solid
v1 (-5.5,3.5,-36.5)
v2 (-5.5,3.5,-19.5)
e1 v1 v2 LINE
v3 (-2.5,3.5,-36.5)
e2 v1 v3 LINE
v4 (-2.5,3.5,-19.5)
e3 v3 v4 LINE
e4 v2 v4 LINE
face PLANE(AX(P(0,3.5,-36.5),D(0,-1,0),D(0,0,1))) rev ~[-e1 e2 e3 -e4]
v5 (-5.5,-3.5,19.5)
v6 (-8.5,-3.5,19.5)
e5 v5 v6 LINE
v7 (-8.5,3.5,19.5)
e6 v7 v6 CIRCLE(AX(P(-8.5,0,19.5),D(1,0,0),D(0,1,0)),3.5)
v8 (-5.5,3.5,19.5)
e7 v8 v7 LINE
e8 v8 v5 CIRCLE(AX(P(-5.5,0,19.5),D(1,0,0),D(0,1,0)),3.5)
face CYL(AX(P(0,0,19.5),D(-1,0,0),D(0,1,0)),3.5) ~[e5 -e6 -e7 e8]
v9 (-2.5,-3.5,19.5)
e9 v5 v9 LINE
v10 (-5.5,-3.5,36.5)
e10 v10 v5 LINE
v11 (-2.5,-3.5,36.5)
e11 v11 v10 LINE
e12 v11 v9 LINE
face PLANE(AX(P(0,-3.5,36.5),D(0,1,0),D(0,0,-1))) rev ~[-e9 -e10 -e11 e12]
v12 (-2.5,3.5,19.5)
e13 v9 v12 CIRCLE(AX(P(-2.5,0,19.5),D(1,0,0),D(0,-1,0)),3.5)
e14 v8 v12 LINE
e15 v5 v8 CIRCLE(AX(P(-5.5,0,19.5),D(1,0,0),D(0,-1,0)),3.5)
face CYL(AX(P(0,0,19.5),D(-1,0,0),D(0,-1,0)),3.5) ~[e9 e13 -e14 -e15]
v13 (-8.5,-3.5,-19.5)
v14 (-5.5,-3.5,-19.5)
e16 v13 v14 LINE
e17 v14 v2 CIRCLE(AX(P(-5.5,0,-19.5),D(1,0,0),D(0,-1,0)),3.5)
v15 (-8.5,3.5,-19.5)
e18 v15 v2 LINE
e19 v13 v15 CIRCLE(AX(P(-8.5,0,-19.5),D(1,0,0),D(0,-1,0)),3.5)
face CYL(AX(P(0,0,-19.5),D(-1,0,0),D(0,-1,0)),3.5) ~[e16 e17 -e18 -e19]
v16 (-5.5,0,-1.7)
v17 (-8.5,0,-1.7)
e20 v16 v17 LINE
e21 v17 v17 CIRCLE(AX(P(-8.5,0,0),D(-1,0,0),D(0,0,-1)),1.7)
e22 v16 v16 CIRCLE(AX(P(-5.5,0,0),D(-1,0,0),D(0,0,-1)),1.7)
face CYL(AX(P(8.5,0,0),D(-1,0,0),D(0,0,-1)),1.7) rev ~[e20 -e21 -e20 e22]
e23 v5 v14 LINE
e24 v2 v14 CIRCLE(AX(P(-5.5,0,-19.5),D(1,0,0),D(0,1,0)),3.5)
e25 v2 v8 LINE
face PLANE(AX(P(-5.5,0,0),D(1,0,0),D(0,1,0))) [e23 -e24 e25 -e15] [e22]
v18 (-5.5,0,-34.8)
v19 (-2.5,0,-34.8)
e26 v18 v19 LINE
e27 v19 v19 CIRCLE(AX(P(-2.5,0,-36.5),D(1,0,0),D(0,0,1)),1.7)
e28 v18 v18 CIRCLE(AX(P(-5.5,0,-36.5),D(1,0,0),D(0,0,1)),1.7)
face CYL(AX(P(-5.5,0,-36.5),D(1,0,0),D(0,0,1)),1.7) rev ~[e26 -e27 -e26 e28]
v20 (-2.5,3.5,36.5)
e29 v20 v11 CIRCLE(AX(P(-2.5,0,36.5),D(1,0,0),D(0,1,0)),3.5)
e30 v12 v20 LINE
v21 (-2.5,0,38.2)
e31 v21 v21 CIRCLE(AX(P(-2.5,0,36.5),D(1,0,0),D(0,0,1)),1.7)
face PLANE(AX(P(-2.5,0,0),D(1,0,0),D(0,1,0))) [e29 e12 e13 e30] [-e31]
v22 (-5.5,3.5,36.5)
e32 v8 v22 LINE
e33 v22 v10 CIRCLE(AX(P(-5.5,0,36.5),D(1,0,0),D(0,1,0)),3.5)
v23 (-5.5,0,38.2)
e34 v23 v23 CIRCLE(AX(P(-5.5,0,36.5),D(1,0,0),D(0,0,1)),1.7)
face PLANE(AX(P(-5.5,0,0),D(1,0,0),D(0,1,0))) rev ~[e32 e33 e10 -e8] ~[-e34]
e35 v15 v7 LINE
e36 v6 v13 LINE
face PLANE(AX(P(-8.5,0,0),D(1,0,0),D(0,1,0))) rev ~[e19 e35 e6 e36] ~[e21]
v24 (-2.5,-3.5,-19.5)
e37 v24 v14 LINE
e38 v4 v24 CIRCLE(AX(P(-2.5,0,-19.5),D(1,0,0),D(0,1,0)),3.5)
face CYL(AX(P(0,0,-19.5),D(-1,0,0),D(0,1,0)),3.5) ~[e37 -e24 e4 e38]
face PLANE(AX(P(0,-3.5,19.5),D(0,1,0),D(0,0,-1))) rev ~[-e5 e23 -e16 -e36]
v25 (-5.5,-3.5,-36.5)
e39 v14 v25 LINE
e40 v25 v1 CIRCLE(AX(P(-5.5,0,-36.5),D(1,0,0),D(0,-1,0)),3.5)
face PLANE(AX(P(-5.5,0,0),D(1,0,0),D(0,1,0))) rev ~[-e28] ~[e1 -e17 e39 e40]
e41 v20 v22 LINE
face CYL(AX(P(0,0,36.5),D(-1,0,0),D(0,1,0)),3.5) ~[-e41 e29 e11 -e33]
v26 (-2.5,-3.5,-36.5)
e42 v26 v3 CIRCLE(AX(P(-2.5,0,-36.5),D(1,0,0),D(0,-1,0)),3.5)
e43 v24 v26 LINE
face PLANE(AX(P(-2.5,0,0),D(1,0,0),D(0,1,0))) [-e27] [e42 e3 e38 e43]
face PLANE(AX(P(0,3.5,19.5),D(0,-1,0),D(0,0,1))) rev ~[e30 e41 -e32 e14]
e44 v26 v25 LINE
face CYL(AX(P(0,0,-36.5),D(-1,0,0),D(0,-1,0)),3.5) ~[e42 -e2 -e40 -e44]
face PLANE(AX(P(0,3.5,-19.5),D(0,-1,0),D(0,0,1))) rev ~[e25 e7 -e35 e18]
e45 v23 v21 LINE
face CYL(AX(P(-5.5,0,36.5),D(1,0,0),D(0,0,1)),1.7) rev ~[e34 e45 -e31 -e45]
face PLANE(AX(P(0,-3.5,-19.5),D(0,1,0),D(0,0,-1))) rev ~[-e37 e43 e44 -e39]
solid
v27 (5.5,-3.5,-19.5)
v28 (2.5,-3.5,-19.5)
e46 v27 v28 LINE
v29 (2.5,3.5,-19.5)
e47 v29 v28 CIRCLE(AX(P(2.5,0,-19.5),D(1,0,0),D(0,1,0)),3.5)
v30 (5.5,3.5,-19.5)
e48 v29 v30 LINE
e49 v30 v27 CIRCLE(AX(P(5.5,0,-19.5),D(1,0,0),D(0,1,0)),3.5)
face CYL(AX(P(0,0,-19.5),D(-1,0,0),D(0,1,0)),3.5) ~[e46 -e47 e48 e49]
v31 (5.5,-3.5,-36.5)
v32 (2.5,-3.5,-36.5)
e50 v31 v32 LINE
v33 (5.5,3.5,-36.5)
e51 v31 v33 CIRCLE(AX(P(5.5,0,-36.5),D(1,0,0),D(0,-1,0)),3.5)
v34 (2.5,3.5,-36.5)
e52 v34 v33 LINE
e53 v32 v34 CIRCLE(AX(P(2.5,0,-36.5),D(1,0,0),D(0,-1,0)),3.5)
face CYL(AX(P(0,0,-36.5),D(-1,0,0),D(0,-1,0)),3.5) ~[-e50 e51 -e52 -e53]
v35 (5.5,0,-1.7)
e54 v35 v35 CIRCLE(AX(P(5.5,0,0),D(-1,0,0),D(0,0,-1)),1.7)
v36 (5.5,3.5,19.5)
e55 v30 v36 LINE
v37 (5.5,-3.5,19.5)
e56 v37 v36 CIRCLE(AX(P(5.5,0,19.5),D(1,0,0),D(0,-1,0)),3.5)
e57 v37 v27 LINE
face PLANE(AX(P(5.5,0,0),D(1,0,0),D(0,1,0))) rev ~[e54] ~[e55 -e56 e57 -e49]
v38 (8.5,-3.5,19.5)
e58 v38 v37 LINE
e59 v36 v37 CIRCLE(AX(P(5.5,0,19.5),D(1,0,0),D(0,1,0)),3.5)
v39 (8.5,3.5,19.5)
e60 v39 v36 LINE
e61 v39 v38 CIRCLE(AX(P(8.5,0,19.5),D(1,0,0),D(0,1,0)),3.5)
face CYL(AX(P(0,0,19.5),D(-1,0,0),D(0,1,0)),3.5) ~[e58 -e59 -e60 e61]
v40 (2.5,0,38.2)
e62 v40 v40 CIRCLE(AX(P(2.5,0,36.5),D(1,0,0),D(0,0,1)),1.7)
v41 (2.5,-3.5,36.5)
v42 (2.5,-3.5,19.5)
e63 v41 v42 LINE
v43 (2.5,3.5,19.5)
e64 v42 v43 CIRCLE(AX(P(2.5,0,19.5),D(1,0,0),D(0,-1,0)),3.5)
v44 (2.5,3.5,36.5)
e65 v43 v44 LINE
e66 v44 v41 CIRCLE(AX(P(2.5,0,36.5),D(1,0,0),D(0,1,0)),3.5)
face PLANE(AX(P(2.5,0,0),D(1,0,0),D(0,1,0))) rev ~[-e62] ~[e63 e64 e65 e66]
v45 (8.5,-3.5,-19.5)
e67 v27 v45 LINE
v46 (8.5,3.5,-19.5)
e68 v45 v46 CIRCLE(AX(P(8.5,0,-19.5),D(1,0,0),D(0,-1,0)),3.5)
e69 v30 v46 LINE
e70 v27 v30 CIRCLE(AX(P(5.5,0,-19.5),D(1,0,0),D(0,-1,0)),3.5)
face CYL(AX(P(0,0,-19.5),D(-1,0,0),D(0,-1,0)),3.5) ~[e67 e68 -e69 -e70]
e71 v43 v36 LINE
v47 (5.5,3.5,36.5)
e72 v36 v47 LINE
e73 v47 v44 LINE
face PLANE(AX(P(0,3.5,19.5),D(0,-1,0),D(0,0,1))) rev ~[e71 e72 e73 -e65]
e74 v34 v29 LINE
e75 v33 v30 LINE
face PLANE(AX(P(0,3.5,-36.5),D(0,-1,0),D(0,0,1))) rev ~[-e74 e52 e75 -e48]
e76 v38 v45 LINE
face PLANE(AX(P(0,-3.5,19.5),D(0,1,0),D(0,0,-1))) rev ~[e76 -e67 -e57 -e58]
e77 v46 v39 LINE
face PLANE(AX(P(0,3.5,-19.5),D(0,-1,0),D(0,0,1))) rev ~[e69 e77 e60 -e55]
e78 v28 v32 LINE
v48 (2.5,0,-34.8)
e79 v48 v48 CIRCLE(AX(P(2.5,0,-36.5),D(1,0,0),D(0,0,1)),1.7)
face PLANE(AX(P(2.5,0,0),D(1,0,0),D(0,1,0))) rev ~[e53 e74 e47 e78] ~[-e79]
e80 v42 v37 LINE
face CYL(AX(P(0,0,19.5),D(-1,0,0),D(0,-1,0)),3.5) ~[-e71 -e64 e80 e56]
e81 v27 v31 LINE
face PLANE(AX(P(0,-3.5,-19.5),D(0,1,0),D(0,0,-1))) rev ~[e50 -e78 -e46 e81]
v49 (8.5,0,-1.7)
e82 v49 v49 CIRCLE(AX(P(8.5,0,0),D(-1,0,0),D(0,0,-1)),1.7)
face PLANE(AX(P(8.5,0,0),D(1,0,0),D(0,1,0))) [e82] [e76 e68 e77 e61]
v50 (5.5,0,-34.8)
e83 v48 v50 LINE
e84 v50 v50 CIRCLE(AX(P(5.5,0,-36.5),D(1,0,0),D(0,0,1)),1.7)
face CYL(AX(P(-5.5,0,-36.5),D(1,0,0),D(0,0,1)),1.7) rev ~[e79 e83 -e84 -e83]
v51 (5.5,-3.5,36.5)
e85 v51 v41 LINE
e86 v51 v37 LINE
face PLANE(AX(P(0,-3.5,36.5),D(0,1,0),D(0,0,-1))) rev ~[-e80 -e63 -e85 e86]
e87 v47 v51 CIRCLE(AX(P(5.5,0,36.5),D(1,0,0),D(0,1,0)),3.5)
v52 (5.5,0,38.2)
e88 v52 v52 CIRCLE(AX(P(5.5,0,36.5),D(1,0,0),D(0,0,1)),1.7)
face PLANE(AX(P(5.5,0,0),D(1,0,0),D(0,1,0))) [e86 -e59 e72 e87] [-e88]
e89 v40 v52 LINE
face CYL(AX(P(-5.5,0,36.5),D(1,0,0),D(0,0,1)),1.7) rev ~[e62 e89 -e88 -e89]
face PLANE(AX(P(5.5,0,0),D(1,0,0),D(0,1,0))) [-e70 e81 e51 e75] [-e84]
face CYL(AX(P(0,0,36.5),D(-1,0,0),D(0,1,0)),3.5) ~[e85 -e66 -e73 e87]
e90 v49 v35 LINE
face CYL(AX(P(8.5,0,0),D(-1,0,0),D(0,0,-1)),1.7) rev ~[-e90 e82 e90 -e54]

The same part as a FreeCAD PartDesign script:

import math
import FreeCAD as App
import Part
import Sketcher
from FreeCAD import Vector

doc = App.newDocument("Part")
body = doc.addObject("PartDesign::Body", "Body")
body.AllowCompound = True

sketch1 = body.newObject("Sketcher::SketchObject", "Sketch")
sketch1.AttachmentSupport = (doc.getObject("YZ_Plane"), [""])
sketch1.MapMode = "FlatFace"
sketch1.addGeometry([
    Part.LineSegment(Vector(-3.5, 19.5, 0), Vector(-3.5, -19.5, 0)),
    Part.ArcOfCircle(Part.Circle(Vector(0, -19.5, 0), Vector(0, 0, 1), 3.5), math.radians(180), math.radians(360)),
    Part.LineSegment(Vector(3.5, -19.5, 0), Vector(3.5, 19.5, 0)),
    Part.ArcOfCircle(Part.Circle(Vector(0, 19.5, 0), Vector(0, 0, 1), 3.5), math.radians(0), math.radians(180)),
], False)
sketch1.addConstraint([
    Sketcher.Constraint("Tangent", 0, 2, 1, 1),
    Sketcher.Constraint("Tangent", 1, 2, 2, 1),
    Sketcher.Constraint("Tangent", 2, 2, 3, 1),
    Sketcher.Constraint("Tangent", 3, 2, 0, 1),
    Sketcher.Constraint("Vertical", 0),
    Sketcher.Constraint("Vertical", 2),
    Sketcher.Constraint("Symmetric", 1, 3, 3, 3, -1, 1),
    Sketcher.Constraint("Radius", 1, 3.5),
    Sketcher.Constraint("DistanceY", 0, 2, 0, 1, 39.0),
])
pad1 = body.newObject("PartDesign::Pad", "Pad")
pad1.Profile = sketch1
pad1.Length = 17
pad1.Midplane = True

sketch2 = body.newObject("Sketcher::SketchObject", "Sketch001")
sketch2.AttachmentSupport = (doc.getObject("YZ_Plane"), [""])
sketch2.MapMode = "FlatFace"
sketch2.addGeometry([
    Part.LineSegment(Vector(-3.5, 19.5, 0), Vector(-3.5, -19.5, 0)),
    Part.ArcOfCircle(Part.Circle(Vector(0, -19.5, 0), Vector(0, 0, 1), 3.5), math.radians(180), math.radians(360)),
    Part.LineSegment(Vector(3.5, -19.5, 0), Vector(3.5, 19.5, 0)),
    Part.ArcOfCircle(Part.Circle(Vector(0, 19.5, 0), Vector(0, 0, 1), 3.5), math.radians(0), math.radians(180)),
], False)
sketch2.addConstraint([
    Sketcher.Constraint("Tangent", 0, 2, 1, 1),
    Sketcher.Constraint("Tangent", 1, 2, 2, 1),
    Sketcher.Constraint("Tangent", 2, 2, 3, 1),
    Sketcher.Constraint("Tangent", 3, 2, 0, 1),
    Sketcher.Constraint("Vertical", 0),
    Sketcher.Constraint("Vertical", 2),
    Sketcher.Constraint("Symmetric", 1, 3, 3, 3, -1, 1),
    Sketcher.Constraint("Radius", 1, 3.5),
    Sketcher.Constraint("DistanceY", 0, 2, 0, 1, 39.0),
])
pocket1 = body.newObject("PartDesign::Pocket", "Pocket")
pocket1.Profile = sketch2
pocket1.Length = 11
pocket1.Midplane = True

sketch3 = body.newObject("Sketcher::SketchObject", "Sketch002")
sketch3.AttachmentSupport = (doc.getObject("YZ_Plane"), [""])
sketch3.MapMode = "FlatFace"
sketch3.addGeometry([
    Part.ArcOfCircle(Part.Circle(Vector(0, -36.5, 0), Vector(0, 0, 1), 3.5), math.radians(180), math.radians(360)),
    Part.LineSegment(Vector(3.5, -36.5, 0), Vector(3.5, -19.5, 0)),
    Part.ArcOfCircle(Part.Circle(Vector(0, -19.5, 0), Vector(0, 0, 1), 3.5), math.radians(0), math.radians(180)),
    Part.LineSegment(Vector(-3.5, -19.5, 0), Vector(-3.5, -36.5, 0)),
    Part.LineSegment(Vector(-3.5, 36.5, 0), Vector(-3.5, 19.5, 0)),
    Part.ArcOfCircle(Part.Circle(Vector(0, 19.5, 0), Vector(0, 0, 1), 3.5), math.radians(180), math.radians(360)),
    Part.LineSegment(Vector(3.5, 19.5, 0), Vector(3.5, 36.5, 0)),
    Part.ArcOfCircle(Part.Circle(Vector(0, 36.5, 0), Vector(0, 0, 1), 3.5), math.radians(0), math.radians(180)),
], False)
sketch3.addConstraint([
    Sketcher.Constraint("Tangent", 0, 2, 1, 1),
    Sketcher.Constraint("Tangent", 1, 2, 2, 1),
    Sketcher.Constraint("Tangent", 2, 2, 3, 1),
    Sketcher.Constraint("Tangent", 3, 2, 0, 1),
    Sketcher.Constraint("Tangent", 4, 2, 5, 1),
    Sketcher.Constraint("Tangent", 5, 2, 6, 1),
    Sketcher.Constraint("Tangent", 6, 2, 7, 1),
    Sketcher.Constraint("Tangent", 7, 2, 4, 1),
    Sketcher.Constraint("Vertical", 1),
    Sketcher.Constraint("Vertical", 3),
    Sketcher.Constraint("Vertical", 4),
    Sketcher.Constraint("Vertical", 6),
    Sketcher.Constraint("Equal", 2, 5),
    Sketcher.Constraint("Symmetric", 2, 3, 5, 3, -1, 1),
    Sketcher.Constraint("Symmetric", 0, 3, 7, 3, -1),
    Sketcher.Constraint("Radius", 0, 3.5),
    Sketcher.Constraint("DistanceY", 2, 3, 5, 3, 39.0),
    Sketcher.Constraint("DistanceY", 1, 1, 1, 2, 17.0),
])
pad2 = body.newObject("PartDesign::Pad", "Pad001")
pad2.Profile = sketch3
pad2.Length = 11
pad2.Midplane = True

sketch4 = body.newObject("Sketcher::SketchObject", "Sketch003")
sketch4.AttachmentSupport = (doc.getObject("YZ_Plane"), [""])
sketch4.MapMode = "FlatFace"
sketch4.addGeometry([
    Part.ArcOfCircle(Part.Circle(Vector(0, -36.5, 0), Vector(0, 0, 1), 3.5), math.radians(180), math.radians(360)),
    Part.LineSegment(Vector(3.5, -36.5, 0), Vector(3.5, -19.5, 0)),
    Part.ArcOfCircle(Part.Circle(Vector(0, -19.5, 0), Vector(0, 0, 1), 3.5), math.radians(0), math.radians(180)),
    Part.LineSegment(Vector(-3.5, -19.5, 0), Vector(-3.5, -36.5, 0)),
    Part.LineSegment(Vector(-3.5, 36.5, 0), Vector(-3.5, 19.5, 0)),
    Part.ArcOfCircle(Part.Circle(Vector(0, 19.5, 0), Vector(0, 0, 1), 3.5), math.radians(180), math.radians(360)),
    Part.LineSegment(Vector(3.5, 19.5, 0), Vector(3.5, 36.5, 0)),
    Part.ArcOfCircle(Part.Circle(Vector(0, 36.5, 0), Vector(0, 0, 1), 3.5), math.radians(0), math.radians(180)),
], False)
sketch4.addConstraint([
    Sketcher.Constraint("Tangent", 0, 2, 1, 1),
    Sketcher.Constraint("Tangent", 1, 2, 2, 1),
    Sketcher.Constraint("Tangent", 2, 2, 3, 1),
    Sketcher.Constraint("Tangent", 3, 2, 0, 1),
    Sketcher.Constraint("Tangent", 4, 2, 5, 1),
    Sketcher.Constraint("Tangent", 5, 2, 6, 1),
    Sketcher.Constraint("Tangent", 6, 2, 7, 1),
    Sketcher.Constraint("Tangent", 7, 2, 4, 1),
    Sketcher.Constraint("Vertical", 1),
    Sketcher.Constraint("Vertical", 3),
    Sketcher.Constraint("Vertical", 4),
    Sketcher.Constraint("Vertical", 6),
    Sketcher.Constraint("Equal", 2, 5),
    Sketcher.Constraint("Symmetric", 2, 3, 5, 3, -1, 1),
    Sketcher.Constraint("Symmetric", 0, 3, 7, 3, -1),
    Sketcher.Constraint("Radius", 0, 3.5),
    Sketcher.Constraint("DistanceY", 2, 3, 5, 3, 39.0),
    Sketcher.Constraint("DistanceY", 1, 1, 1, 2, 17.0),
])
pocket2 = body.newObject("PartDesign::Pocket", "Pocket001")
pocket2.Profile = sketch4
pocket2.Length = 5
pocket2.Midplane = True

sketch5 = body.newObject("Sketcher::SketchObject", "Sketch004")
sketch5.AttachmentSupport = (doc.getObject("YZ_Plane"), [""])
sketch5.MapMode = "FlatFace"
sketch5.AttachmentOffset = App.Placement(Vector(0, 0, -5.5), App.Rotation())
sketch5.addGeometry([
    Part.Circle(Vector(0, -36.5, 0), Vector(0, 0, 1), 1.7),
    Part.Circle(Vector(0, 36.5, 0), Vector(0, 0, 1), 1.7),
], False)
sketch5.addConstraint([
    Sketcher.Constraint("Equal", 0, 1),
    Sketcher.Constraint("Symmetric", 0, 3, 1, 3, -1, 1),
    Sketcher.Constraint("PointOnObject", 0, 3, -2),
    Sketcher.Constraint("Diameter", 0, 3.4),
    Sketcher.Constraint("DistanceY", 0, 3, 1, 3, 73.0),
])
doc.recompute()
hole = body.newObject("PartDesign::Hole", "Hole")
hole.Profile = sketch5
hole.ThreadType = "None"
hole.Diameter = 3.4
hole.DepthType = "ThroughAll"
hole.Reversed = True

sketch6 = body.newObject("Sketcher::SketchObject", "Sketch005")
sketch6.AttachmentSupport = (doc.getObject("YZ_Plane"), [""])
sketch6.MapMode = "FlatFace"
sketch6.AttachmentOffset = App.Placement(Vector(0, 0, 8.5), App.Rotation())
sketch6.addGeometry(Part.Circle(Vector(0, 0, 0), Vector(0, 0, 1), 1.7), False)
sketch6.addConstraint([
    Sketcher.Constraint("Coincident", 0, 3, -1, 1),
    Sketcher.Constraint("Diameter", 0, 3.4),
])
doc.recompute()
hole2 = body.newObject("PartDesign::Hole", "Hole001")
hole2.Profile = sketch6
hole2.ThreadType = "None"
hole2.Diameter = 3.4
hole2.DepthType = "ThroughAll"

doc.recompute()
